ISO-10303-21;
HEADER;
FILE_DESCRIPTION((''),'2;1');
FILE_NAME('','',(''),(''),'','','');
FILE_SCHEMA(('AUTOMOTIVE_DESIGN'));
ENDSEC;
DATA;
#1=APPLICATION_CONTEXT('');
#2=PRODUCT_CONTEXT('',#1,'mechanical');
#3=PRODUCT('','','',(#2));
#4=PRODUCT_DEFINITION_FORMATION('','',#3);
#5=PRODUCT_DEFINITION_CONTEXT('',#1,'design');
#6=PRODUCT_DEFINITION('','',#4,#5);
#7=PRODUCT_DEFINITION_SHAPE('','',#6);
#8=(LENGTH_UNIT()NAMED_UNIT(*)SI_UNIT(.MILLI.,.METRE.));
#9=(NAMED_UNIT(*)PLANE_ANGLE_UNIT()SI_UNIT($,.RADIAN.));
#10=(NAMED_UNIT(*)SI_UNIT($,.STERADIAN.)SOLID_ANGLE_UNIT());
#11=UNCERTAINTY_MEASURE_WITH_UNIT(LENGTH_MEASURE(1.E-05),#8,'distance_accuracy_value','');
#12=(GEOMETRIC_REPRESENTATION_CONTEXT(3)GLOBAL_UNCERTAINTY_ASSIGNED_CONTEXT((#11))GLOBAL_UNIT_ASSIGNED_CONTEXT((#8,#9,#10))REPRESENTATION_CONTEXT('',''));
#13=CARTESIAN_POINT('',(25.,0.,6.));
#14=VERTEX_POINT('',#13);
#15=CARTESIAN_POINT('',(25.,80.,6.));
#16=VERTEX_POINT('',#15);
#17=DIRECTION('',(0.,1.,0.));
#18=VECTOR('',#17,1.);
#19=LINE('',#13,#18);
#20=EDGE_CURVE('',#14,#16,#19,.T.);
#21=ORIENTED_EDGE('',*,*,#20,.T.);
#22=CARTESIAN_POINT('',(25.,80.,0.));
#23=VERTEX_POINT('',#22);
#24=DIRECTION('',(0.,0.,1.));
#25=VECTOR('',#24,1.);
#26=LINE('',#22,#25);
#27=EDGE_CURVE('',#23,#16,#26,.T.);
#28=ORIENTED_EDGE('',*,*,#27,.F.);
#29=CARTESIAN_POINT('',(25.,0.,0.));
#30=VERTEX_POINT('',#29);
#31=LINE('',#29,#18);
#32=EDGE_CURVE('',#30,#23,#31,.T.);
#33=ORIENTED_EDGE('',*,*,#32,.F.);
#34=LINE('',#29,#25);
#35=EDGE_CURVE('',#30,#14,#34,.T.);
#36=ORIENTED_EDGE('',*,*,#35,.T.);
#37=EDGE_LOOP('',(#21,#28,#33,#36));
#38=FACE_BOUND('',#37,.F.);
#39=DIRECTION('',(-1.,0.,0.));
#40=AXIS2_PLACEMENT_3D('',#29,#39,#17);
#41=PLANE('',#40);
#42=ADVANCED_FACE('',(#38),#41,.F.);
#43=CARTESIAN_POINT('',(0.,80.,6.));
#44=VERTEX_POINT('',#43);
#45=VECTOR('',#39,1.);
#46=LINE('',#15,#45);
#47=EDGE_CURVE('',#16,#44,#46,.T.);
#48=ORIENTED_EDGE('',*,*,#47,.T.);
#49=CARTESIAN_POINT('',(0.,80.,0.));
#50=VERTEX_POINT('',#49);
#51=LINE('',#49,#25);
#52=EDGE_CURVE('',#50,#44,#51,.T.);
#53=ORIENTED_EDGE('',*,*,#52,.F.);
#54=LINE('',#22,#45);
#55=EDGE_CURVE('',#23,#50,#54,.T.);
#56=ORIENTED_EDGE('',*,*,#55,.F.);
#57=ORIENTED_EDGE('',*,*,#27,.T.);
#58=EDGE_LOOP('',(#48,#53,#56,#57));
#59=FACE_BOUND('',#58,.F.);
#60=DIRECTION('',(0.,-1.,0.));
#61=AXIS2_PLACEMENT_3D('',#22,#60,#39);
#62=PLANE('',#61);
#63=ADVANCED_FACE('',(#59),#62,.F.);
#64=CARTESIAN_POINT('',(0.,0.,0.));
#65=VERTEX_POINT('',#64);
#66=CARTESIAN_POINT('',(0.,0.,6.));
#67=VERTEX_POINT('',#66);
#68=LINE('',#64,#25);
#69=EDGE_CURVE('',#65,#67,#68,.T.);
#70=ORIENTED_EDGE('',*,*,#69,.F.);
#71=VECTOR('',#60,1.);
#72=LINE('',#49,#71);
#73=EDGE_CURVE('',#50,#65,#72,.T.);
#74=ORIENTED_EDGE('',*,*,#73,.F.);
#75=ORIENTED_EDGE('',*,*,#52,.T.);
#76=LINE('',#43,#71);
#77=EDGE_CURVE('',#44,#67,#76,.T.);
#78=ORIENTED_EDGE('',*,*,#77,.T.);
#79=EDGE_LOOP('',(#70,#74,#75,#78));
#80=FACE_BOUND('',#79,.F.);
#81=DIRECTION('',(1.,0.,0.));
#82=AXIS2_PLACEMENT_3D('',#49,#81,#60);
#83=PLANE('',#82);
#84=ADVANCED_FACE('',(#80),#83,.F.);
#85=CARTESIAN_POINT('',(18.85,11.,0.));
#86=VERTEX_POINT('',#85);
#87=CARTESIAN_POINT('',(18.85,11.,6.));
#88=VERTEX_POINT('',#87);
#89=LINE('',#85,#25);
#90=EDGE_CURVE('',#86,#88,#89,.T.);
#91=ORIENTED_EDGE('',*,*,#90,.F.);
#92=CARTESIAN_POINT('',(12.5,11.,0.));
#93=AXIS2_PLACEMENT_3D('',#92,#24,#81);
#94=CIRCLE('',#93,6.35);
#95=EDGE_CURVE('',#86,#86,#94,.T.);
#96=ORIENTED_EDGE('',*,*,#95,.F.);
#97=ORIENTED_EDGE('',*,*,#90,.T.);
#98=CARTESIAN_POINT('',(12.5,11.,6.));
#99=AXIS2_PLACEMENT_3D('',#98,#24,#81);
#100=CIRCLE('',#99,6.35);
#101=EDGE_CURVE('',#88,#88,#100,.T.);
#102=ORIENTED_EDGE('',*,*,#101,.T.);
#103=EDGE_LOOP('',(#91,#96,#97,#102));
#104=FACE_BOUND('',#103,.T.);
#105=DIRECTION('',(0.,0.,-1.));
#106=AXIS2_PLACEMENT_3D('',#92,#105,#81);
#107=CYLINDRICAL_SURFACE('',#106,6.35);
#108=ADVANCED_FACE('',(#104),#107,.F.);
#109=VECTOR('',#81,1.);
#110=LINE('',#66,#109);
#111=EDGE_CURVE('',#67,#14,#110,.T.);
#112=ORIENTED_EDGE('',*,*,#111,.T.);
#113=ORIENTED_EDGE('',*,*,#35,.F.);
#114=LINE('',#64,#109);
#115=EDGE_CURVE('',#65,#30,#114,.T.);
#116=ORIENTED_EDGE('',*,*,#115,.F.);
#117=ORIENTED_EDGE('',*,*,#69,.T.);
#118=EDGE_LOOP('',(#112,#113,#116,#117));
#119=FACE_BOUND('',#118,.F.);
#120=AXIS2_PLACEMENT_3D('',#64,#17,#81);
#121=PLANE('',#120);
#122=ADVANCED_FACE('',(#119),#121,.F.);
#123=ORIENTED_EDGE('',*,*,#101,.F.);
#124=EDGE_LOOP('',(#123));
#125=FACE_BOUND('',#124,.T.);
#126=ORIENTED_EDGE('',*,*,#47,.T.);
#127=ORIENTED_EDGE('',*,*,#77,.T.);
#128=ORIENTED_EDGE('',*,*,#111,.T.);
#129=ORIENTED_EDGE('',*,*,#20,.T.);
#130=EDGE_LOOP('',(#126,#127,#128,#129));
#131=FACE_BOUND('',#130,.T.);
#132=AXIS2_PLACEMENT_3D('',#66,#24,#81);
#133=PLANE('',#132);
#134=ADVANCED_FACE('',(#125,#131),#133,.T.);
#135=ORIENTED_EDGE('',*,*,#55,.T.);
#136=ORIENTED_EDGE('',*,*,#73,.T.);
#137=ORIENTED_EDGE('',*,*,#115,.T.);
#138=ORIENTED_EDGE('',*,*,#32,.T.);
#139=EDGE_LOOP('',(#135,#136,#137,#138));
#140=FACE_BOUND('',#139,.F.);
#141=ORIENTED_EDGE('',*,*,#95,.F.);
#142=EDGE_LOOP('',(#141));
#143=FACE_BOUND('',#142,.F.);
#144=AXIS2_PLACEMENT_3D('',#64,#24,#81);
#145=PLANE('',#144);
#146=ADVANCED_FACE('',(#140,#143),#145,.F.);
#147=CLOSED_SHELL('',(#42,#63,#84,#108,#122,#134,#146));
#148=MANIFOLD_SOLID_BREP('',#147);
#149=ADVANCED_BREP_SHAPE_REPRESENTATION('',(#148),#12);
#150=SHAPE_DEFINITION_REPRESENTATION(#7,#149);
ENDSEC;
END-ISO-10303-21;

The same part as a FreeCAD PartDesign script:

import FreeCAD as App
import Part
import Sketcher

V = App.Vector

doc = App.newDocument("Part")
body = doc.addObject("PartDesign::Body", "Body")

# Sketch on XY plane
sketch1 = body.newObject("Sketcher::SketchObject", "Sketch")
sketch1.AttachmentSupport = (doc.getObject("XY_Plane"), [""])
sketch1.MapMode = "FlatFace"
sketch1.addGeometry(Part.LineSegment(V(0, 80, 0), V(0, 0, 0)), False)
sketch1.addGeometry(Part.LineSegment(V(0, 0, 0), V(25, 0, 0)), False)
sketch1.addGeometry(Part.LineSegment(V(25, 0, 0), V(25, 80, 0)), False)
sketch1.addGeometry(Part.LineSegment(V(25, 80, 0), V(0, 80, 0)), False)
sketch1.addGeometry(Part.Circle(V(12, 11, 0), V(0, 0, 1), 6), False)
sketch1.addConstraint(Sketcher.Constraint("Coincident", 0, 2, 1, 1))
sketch1.addConstraint(Sketcher.Constraint("Coincident", 1, 2, 2, 1))
sketch1.addConstraint(Sketcher.Constraint("Coincident", 2, 2, 3, 1))
sketch1.addConstraint(Sketcher.Constraint("Coincident", 3, 2, 0, 1))
sketch1.addConstraint(Sketcher.Constraint("Vertical", 0))
sketch1.addConstraint(Sketcher.Constraint("Horizontal", 1))
sketch1.addConstraint(Sketcher.Constraint("Vertical", 2))
sketch1.addConstraint(Sketcher.Constraint("Horizontal", 3))
sketch1.addConstraint(Sketcher.Constraint("Coincident", 0, 2, -1, 1))
sketch1.addConstraint(Sketcher.Constraint("Diameter", 4, 12.7))
sketch1.addConstraint(Sketcher.Constraint("DistanceX", 1, 1, 1, 2, 25.0))
sketch1.addConstraint(Sketcher.Constraint("DistanceY", 0, 2, 0, 1, 80.0))
sketch1.addConstraint(Sketcher.Constraint("DistanceY", -1, 1, 4, 3, 11.0))
sketch1.addConstraint(Sketcher.Constraint("DistanceX", -1, 1, 4, 3, 12.5))
pad1 = body.newObject("PartDesign::Pad", "Pad")
pad1.Profile = sketch1
pad1.Length = 6

doc.recompute()
